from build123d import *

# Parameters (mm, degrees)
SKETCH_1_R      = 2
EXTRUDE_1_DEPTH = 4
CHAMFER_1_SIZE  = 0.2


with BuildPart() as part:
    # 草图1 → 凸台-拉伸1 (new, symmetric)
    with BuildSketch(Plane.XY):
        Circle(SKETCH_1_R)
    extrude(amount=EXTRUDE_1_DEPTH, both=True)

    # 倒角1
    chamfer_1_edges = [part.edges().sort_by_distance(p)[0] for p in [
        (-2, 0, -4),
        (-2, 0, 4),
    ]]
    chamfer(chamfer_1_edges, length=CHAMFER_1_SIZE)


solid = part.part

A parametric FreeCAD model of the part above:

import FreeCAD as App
import Part
import Sketcher

V = App.Vector


def edges_at(feature, points):
    """Names of the edges that pass closest to the given points."""
    edges = feature.Shape.Edges
    near = lambda p: min(range(len(edges)), key=lambda i: edges[i].distToShape(Part.Vertex(*p))[0])
    return sorted({f"Edge{near(p) + 1}" for p in points})

doc = App.newDocument("Part")
body = doc.addObject("PartDesign::Body", "Body")

sketch1 = doc.addObject("Sketcher::SketchObject", "Sketch")
body.addObject(sketch1)
sketch1.AttachmentSupport = (doc.XY_Plane, [""])
sketch1.MapMode = "FlatFace"
sketch1.addGeometry(Part.Circle(V(0, 0, 0), V(0, 0, 1), 2), False)
sketch1.addConstraint([
    Sketcher.Constraint("Coincident", 0, 3, -1, 1),
    Sketcher.Constraint("Diameter", 0, 4.0),
])
pad1 = doc.addObject("PartDesign::Pad", "Pad")
body.addObject(pad1)
pad1.Profile = sketch1
pad1.Length = 8
pad1.Midplane = True
doc.recompute()

chamfer = doc.addObject("PartDesign::Chamfer", "Chamfer")
body.addObject(chamfer)
chamfer.Base = (pad1, edges_at(pad1, [(-2, 0, -4), (-2, 0, 4)]))
chamfer.Size = 0.2

doc.recompute()
